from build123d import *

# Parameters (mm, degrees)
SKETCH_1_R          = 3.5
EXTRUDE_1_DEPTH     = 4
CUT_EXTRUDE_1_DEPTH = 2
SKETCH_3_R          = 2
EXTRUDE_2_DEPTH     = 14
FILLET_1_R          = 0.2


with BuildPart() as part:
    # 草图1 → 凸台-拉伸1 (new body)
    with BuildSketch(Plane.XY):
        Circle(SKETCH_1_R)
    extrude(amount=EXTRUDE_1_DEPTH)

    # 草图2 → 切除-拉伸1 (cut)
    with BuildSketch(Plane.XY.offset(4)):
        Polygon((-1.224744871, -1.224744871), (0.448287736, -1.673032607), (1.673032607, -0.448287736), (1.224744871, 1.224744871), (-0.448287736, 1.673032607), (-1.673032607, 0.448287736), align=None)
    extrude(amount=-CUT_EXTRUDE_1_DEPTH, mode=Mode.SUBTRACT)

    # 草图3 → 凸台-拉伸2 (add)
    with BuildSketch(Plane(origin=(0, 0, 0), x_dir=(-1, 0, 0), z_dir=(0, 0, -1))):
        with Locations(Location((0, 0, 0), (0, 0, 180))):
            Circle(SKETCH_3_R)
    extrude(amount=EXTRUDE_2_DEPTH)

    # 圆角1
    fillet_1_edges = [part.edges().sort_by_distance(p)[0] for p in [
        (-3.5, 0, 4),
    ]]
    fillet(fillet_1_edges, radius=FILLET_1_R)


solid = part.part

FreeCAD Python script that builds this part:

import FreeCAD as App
import Part
import Sketcher

V = App.Vector
Q = App.Units.Quantity


def edges_at(feature, points):
    """Names of the edges that pass closest to the given points."""
    edges = feature.Shape.Edges
    near = lambda p: min(range(len(edges)), key=lambda i: edges[i].distToShape(Part.Vertex(*p))[0])
    return sorted({f"Edge{near(p) + 1}" for p in points})


def add_polygon(sketch, points):
    """Adds a closed chain of lines whose ends are joined by coincident constraints."""
    first, n = sketch.GeometryCount, len(points)
    for a, b in zip(points, points[1:] + points[:1]):
        sketch.addGeometry(Part.LineSegment(App.Vector(*a, 0), App.Vector(*b, 0)), False)
    for i in range(n):
        sketch.addConstraint(Sketcher.Constraint("Coincident", first + i, 2, first + (i + 1) % n, 1))

doc = App.newDocument("Part")
params = doc.addObject("Spreadsheet::Sheet", "Params")
for row, (alias, value) in enumerate([
    ("sketch1_diameter", "7 mm"),
    ("pad1_length", "4 mm"),
    ("pocket1_length", "2 mm"),
    ("sketch3_diameter", "4 mm"),
    ("pad2_length", "14 mm"),
    ("fillet_radius", "0.2 mm"),
], start=1):
    params.set(f"A{row}", alias)
    params.set(f"B{row}", "=" + value)
    params.setAlias(f"B{row}", alias)

body = doc.addObject("PartDesign::Body", "Body")

# Sketch on XY plane
sketch1 = doc.addObject("Sketcher::SketchObject", "Sketch")
body.addObject(sketch1)
sketch1.AttachmentSupport = (doc.XY_Plane, [""])
sketch1.MapMode = "FlatFace"
sketch1.addGeometry(Part.Circle(V(0, 0, 0), V(0, 0, 1), 3.5), False)
sketch1.addConstraint([
    Sketcher.Constraint("Coincident", 0, 3, -1, 1),
    Sketcher.Constraint("Diameter", 0, 7.0),
])
sketch1.setExpression("Constraints[1]", "Params.sketch1_diameter")
pad1 = doc.addObject("PartDesign::Pad", "Pad")
body.addObject(pad1)
pad1.Profile = sketch1
pad1.setExpression("Length", "Params.pad1_length")

# Sketch on XY plane
sketch2 = doc.addObject("Sketcher::SketchObject", "Sketch001")
body.addObject(sketch2)
sketch2.AttachmentSupport = (doc.XY_Plane, [""])
sketch2.MapMode = "FlatFace"
sketch2.AttachmentOffset = App.Placement(V(0, 0, 4), App.Rotation())
add_polygon(sketch2, [(-1.2, -1.2), (0.4, -1.7), (1.7, -0.4), (1.2, 1.2), (-0.4, 1.7), (-1.7, 0.4)])  # lines 0-5
sketch2.addConstraint([
    Sketcher.Constraint("Symmetric", 0, 2, 3, 2, -1, 1),
    Sketcher.Constraint("Symmetric", 1, 2, 4, 2, -1, 1),
    Sketcher.Constraint("Symmetric", 2, 2, 5, 2, -1, 1),
    Sketcher.Constraint("Equal", 0, 1),
    Sketcher.Constraint("Equal", 1, 2),
    Sketcher.Constraint("Angle", 0, Q("-15 deg")),
    Sketcher.Constraint("Angle", 1, Q("45 deg")),
    Sketcher.Constraint("Angle", 2, Q("105 deg")),
    Sketcher.Constraint("Distance", 0, 1.732051),
])
pocket1 = doc.addObject("PartDesign::Pocket", "Pocket")
body.addObject(pocket1)
pocket1.Profile = sketch2
pocket1.setExpression("Length", "Params.pocket1_length")

# Sketch on XY plane
sketch3 = doc.addObject("Sketcher::SketchObject", "Sketch002")
body.addObject(sketch3)
sketch3.AttachmentSupport = (doc.XY_Plane, [""])
sketch3.MapMode = "FlatFace"
sketch3.addGeometry(Part.Circle(V(0, 0, 0), V(0, 0, 1), 2), False)
sketch3.addConstraint([
    Sketcher.Constraint("Coincident", 0, 3, -1, 1),
    Sketcher.Constraint("Diameter", 0, 4.0),
])
sketch3.setExpression("Constraints[1]", "Params.sketch3_diameter")
pad2 = doc.addObject("PartDesign::Pad", "Pad001")
body.addObject(pad2)
pad2.Profile = sketch3
pad2.setExpression("Length", "Params.pad2_length")
pad2.Reversed = True
doc.recompute()

fillet = doc.addObject("PartDesign::Fillet", "Fillet")
body.addObject(fillet)
fillet.Base = (pad2, edges_at(pad2, [(-3.5, 0, 4)]))
fillet.setExpression("Radius", "Params.fillet_radius")

doc.recompute()
